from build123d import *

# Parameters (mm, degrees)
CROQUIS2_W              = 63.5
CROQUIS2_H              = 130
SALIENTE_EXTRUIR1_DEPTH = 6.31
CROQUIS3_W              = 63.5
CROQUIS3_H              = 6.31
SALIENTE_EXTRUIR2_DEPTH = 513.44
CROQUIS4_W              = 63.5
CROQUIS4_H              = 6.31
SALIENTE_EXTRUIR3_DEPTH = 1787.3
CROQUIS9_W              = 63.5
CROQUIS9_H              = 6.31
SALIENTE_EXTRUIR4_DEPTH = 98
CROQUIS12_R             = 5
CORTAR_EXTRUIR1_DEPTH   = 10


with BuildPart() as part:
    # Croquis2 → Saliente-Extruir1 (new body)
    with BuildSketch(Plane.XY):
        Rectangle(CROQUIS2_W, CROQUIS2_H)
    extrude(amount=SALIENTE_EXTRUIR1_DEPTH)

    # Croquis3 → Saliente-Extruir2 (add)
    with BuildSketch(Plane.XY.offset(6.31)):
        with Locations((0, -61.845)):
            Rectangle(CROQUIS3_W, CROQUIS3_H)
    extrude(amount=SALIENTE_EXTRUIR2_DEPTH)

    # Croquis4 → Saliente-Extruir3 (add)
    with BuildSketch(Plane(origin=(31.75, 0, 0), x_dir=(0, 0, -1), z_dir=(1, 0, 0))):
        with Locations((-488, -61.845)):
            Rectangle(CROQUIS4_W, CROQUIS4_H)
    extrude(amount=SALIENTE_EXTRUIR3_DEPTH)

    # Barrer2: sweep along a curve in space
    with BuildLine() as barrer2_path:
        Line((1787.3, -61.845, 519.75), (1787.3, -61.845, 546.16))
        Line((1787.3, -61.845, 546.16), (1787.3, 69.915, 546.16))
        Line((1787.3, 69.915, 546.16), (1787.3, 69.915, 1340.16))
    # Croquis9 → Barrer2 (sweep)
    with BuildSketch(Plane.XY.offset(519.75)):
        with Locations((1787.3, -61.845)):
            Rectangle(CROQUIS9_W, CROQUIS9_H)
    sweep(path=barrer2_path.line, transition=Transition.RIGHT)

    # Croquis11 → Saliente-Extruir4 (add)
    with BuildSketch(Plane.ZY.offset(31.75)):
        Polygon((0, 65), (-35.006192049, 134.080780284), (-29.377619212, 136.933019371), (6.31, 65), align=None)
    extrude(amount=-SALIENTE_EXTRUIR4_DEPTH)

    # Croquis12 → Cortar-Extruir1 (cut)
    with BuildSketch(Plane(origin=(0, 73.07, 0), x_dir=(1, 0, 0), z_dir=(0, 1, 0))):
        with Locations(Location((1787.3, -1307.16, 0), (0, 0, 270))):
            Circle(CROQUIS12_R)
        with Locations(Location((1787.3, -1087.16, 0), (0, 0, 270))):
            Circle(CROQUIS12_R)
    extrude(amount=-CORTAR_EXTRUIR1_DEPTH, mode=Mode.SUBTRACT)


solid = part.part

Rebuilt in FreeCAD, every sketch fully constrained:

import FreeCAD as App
import Part
import Sketcher

V = App.Vector
Q = App.Units.Quantity


def add_polygon(sketch, points):
    """Adds a closed chain of lines whose ends are joined by coincident constraints."""
    first, n = sketch.GeometryCount, len(points)
    for a, b in zip(points, points[1:] + points[:1]):
        sketch.addGeometry(Part.LineSegment(App.Vector(*a, 0), App.Vector(*b, 0)), False)
    for i in range(n):
        sketch.addConstraint(Sketcher.Constraint("Coincident", first + i, 2, first + (i + 1) % n, 1))

doc = App.newDocument("Part")
body = doc.addObject("PartDesign::Body", "Body")

# Sketch on XY plane
sketch1 = body.newObject("Sketcher::SketchObject", "Sketch")
sketch1.AttachmentSupport = (doc.getObject("XY_Plane"), [""])
sketch1.MapMode = "FlatFace"
add_polygon(sketch1, [(-32, 65), (-32, -65), (32, -65), (32, 65)])  # lines 0-3
sketch1.addConstraint([
    Sketcher.Constraint("Vertical", 0),
    Sketcher.Constraint("Horizontal", 1),
    Sketcher.Constraint("Vertical", 2),
    Sketcher.Constraint("Horizontal", 3),
    Sketcher.Constraint("Symmetric", 0, 2, 2, 2, -1, 1),
    Sketcher.Constraint("DistanceY", 0, 2, 0, 1, Q("130 mm")),
    Sketcher.Constraint("DistanceX", 1, 1, 1, 2, Q("63.5 mm")),
])
pad1 = body.newObject("PartDesign::Pad", "Pad")
pad1.Profile = sketch1
pad1.Length = 6.31

# Sketch on XY plane
sketch2 = body.newObject("Sketcher::SketchObject", "Sketch001")
sketch2.AttachmentSupport = (doc.getObject("XY_Plane"), [""])
sketch2.MapMode = "FlatFace"
sketch2.AttachmentOffset = App.Placement(V(0, 0, 6.31), App.Rotation())
add_polygon(sketch2, [(-32, -59), (-32, -65), (32, -65), (32, -59)])  # lines 0-3
sketch2.addConstraint([
    Sketcher.Constraint("Vertical", 0),
    Sketcher.Constraint("Horizontal", 1),
    Sketcher.Constraint("Vertical", 2),
    Sketcher.Constraint("Horizontal", 3),
    Sketcher.Constraint("DistanceX", 1, 1, 1, 2, Q("63.5 mm")),
    Sketcher.Constraint("DistanceY", 0, 2, -1, 1, Q("65 mm")),
    Sketcher.Constraint("DistanceY", 0, 2, 0, 1, Q("6.31 mm")),
    Sketcher.Constraint("DistanceX", 0, 2, -1, 1, Q("31.75 mm")),
])
pad2 = body.newObject("PartDesign::Pad", "Pad001")
pad2.Profile = sketch2
pad2.Length = 513.44

# Sketch on YZ plane
sketch3 = body.newObject("Sketcher::SketchObject", "Sketch002")
sketch3.AttachmentSupport = (doc.getObject("YZ_Plane"), [""])
sketch3.MapMode = "FlatFace"
sketch3.AttachmentOffset = App.Placement(V(0, 0, 31.75), App.Rotation())
add_polygon(sketch3, [(-59, 520), (-65, 520), (-65, 456), (-59, 456)])  # lines 0-3
sketch3.addConstraint([
    Sketcher.Constraint("Horizontal", 0),
    Sketcher.Constraint("Vertical", 1),
    Sketcher.Constraint("Horizontal", 2),
    Sketcher.Constraint("Vertical", 3),
    Sketcher.Constraint("DistanceY", 1, 2, 1, 1, Q("63.5 mm")),
    Sketcher.Constraint("DistanceX", 0, 2, -1, 1, Q("65 mm")),
    Sketcher.Constraint("DistanceX", 0, 2, 0, 1, Q("6.31 mm")),
    Sketcher.Constraint("DistanceY", -1, 1, 0, 2, Q("519.75 mm")),
])
pad3 = body.newObject("PartDesign::Pad", "Pad002")
pad3.Profile = sketch3
pad3.Length = 1787.3

# Sketch on XY plane
sketch4 = body.newObject("Sketcher::SketchObject", "Sketch003")
sketch4.AttachmentSupport = (doc.getObject("XY_Plane"), [""])
sketch4.MapMode = "FlatFace"
sketch4.AttachmentOffset = App.Placement(V(0, 0, 519.75), App.Rotation())
add_polygon(sketch4, [(1756, -59), (1756, -65), (1819, -65), (1819, -59)])  # lines 0-3
sketch4.addConstraint([
    Sketcher.Constraint("Vertical", 0),
    Sketcher.Constraint("Horizontal", 1),
    Sketcher.Constraint("Vertical", 2),
    Sketcher.Constraint("Horizontal", 3),
    Sketcher.Constraint("DistanceX", 1, 1, 1, 2, Q("63.5 mm")),
    Sketcher.Constraint("DistanceY", 0, 2, -1, 1, Q("65 mm")),
    Sketcher.Constraint("DistanceY", 0, 2, 0, 1, Q("6.31 mm")),
    Sketcher.Constraint("DistanceX", -1, 1, 0, 2, Q("1755.55 mm")),
])

# Sketch on YZ plane
sketch5 = body.newObject("Sketcher::SketchObject", "Sketch004")
sketch5.AttachmentSupport = (doc.getObject("YZ_Plane"), [""])
sketch5.MapMode = "FlatFace"
sketch5.AttachmentOffset = App.Placement(V(0, 0, 1787.3), App.Rotation())
sketch5.addGeometry([
    Part.LineSegment(V(-62, 520, 0), V(-62, 546, 0)),
    Part.LineSegment(V(-62, 546, 0), V(70, 546, 0)),
    Part.LineSegment(V(70, 546, 0), V(70, 1340, 0)),
], False)
sketch5.addConstraint([
    Sketcher.Constraint("Coincident", 0, 2, 1, 1),
    Sketcher.Constraint("Coincident", 1, 2, 2, 1),
    Sketcher.Constraint("Vertical", 0),
    Sketcher.Constraint("Horizontal", 1),
    Sketcher.Constraint("Vertical", 2),
    Sketcher.Constraint("DistanceY", 2, 1, 2, 2, Q("794 mm")),
    Sketcher.Constraint("DistanceX", 1, 1, 1, 2, Q("131.76 mm")),
    Sketcher.Constraint("DistanceY", 0, 1, 0, 2, Q("26.41 mm")),
    Sketcher.Constraint("DistanceY", -1, 1, 0, 1, Q("519.75 mm")),
    Sketcher.Constraint("DistanceX", 0, 1, -1, 1, Q("61.845 mm")),
])
doc.recompute()

additivepipe = body.newObject("PartDesign::AdditivePipe", "AdditivePipe")
additivepipe.Profile = sketch4
additivepipe.Spine = (sketch5, ["Edge1", "Edge2", "Edge3"])
additivepipe.Transition = "Right corner"

# Sketch on YZ plane
sketch6 = body.newObject("Sketcher::SketchObject", "Sketch005")
sketch6.AttachmentSupport = (doc.getObject("YZ_Plane"), [""])
sketch6.MapMode = "FlatFace"
sketch6.AttachmentOffset = App.Placement(V(0, 0, -31.75), App.Rotation())
add_polygon(sketch6, [(134, -35), (65, 0), (65, 6), (137, -29)])  # lines 0-3
sketch6.addConstraint([
    Sketcher.Constraint("Vertical", 1),
    Sketcher.Constraint("PointOnObject", 0, 2, -1),
    Sketcher.Constraint("Perpendicular", 0, 3),
    Sketcher.Constraint("DistanceX", -1, 1, 0, 2, Q("65 mm")),
    Sketcher.Constraint("DistanceY", 1, 1, 1, 2, Q("6.31 mm")),
    Sketcher.Constraint("Distance", 3, Q("6.31 mm")),
    Sketcher.Constraint("DistanceX", -1, 1, 2, 2, Q("136.933019 mm")),
    Sketcher.Constraint("DistanceY", 2, 2, -1, 1, Q("29.377619 mm")),
])
pad4 = body.newObject("PartDesign::Pad", "Pad003")
pad4.Profile = sketch6
pad4.Length = 98

# Sketch on XZ plane
sketch7 = body.newObject("Sketcher::SketchObject", "Sketch006")
sketch7.AttachmentSupport = (doc.getObject("XZ_Plane"), [""])
sketch7.MapMode = "FlatFace"
sketch7.AttachmentOffset = App.Placement(V(0, 0, -73.07), App.Rotation())
sketch7.addGeometry([
    Part.Circle(V(1787, 1307, 0), V(0, 0, 1), 5),
    Part.Circle(V(1787, 1087, 0), V(0, 0, 1), 5),
], False)
sketch7.addConstraint([
    Sketcher.Constraint("Equal", 0, 1),
    Sketcher.Constraint("Vertical", 0, 3, 1, 3),
    Sketcher.Constraint("Diameter", 0, Q("10 mm")),
    Sketcher.Constraint("DistanceY", 1, 3, 0, 3, Q("220 mm")),
    Sketcher.Constraint("DistanceX", -1, 1, 0, 3, Q("1787.3 mm")),
    Sketcher.Constraint("DistanceY", -1, 1, 0, 3, Q("1307.16 mm")),
])
pocket1 = body.newObject("PartDesign::Pocket", "Pocket")
pocket1.Profile = sketch7
pocket1.Length = 10
pocket1.Reversed = True

doc.recompute()
